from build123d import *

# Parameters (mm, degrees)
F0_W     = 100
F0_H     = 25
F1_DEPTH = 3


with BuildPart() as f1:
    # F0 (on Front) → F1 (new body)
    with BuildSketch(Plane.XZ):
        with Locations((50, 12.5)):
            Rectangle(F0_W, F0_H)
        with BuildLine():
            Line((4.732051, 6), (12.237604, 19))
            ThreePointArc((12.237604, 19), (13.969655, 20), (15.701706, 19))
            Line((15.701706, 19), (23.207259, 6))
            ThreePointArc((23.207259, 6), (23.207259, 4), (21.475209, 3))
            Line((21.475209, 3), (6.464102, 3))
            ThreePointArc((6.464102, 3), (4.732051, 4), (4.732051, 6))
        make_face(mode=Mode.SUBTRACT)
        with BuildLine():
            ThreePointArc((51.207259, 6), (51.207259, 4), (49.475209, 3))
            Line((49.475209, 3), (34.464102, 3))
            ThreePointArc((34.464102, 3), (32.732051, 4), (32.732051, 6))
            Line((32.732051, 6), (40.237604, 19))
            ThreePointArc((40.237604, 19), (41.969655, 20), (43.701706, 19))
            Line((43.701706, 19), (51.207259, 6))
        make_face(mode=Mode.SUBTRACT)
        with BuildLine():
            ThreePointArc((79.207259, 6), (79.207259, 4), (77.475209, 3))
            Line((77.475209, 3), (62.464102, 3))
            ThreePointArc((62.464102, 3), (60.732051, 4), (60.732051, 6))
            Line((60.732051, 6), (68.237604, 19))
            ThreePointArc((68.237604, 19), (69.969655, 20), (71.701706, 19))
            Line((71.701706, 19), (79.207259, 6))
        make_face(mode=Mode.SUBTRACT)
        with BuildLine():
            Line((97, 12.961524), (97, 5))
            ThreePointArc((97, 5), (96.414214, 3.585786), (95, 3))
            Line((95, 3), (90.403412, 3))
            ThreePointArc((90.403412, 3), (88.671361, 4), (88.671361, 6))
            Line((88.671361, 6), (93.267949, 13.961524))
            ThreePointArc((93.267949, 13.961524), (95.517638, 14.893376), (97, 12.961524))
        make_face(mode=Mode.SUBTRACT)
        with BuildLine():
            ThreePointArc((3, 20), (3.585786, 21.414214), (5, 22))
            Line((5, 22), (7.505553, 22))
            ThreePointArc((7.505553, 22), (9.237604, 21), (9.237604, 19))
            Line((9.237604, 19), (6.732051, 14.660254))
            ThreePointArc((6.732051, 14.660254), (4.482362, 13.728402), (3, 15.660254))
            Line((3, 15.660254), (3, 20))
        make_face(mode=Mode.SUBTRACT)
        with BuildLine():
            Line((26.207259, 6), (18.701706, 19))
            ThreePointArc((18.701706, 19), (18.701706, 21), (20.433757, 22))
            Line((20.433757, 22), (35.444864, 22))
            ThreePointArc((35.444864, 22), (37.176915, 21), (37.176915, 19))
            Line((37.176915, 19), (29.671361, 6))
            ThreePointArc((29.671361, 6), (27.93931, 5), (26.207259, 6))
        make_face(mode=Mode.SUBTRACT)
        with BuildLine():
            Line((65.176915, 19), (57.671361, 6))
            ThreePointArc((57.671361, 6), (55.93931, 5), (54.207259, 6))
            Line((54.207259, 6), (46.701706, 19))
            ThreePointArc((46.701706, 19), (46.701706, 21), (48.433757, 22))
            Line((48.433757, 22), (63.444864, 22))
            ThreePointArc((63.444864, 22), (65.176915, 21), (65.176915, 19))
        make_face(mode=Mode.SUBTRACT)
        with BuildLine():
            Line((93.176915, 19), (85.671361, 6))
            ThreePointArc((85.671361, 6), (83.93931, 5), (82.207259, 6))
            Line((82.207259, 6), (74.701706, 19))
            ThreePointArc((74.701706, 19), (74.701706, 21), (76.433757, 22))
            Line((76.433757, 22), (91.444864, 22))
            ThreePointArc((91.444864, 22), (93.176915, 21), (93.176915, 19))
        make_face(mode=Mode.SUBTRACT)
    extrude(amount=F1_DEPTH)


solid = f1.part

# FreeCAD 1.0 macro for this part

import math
import FreeCAD as App
import Part
import Sketcher
from FreeCAD import Vector
Q = App.Units.Quantity


def add_polygon(sketch, points):
    """Adds a closed chain of lines whose ends are joined by coincident constraints."""
    first, n = sketch.GeometryCount, len(points)
    for a, b in zip(points, points[1:] + points[:1]):
        sketch.addGeometry(Part.LineSegment(App.Vector(*a, 0), App.Vector(*b, 0)), False)
    for i in range(n):
        sketch.addConstraint(Sketcher.Constraint("Coincident", first + i, 2, first + (i + 1) % n, 1))

doc = App.newDocument("Part")
body = doc.addObject("PartDesign::Body", "Body")

sketch1 = doc.addObject("Sketcher::SketchObject", "Sketch")
body.addObject(sketch1)
sketch1.AttachmentSupport = (doc.XZ_Plane, [""])
sketch1.MapMode = "FlatFace"
add_polygon(sketch1, [(0, 25), (0, 0), (100, 0), (100, 25)])
sketch1.addGeometry(Part.ArcOfCircle(Part.Circle(Vector(6.5, 5, 0), Vector(0, 0, 1), 2), math.radians(150), math.radians(270)), False)
sketch1.addGeometry(Part.LineSegment(Vector(4.7, 6, 0), Vector(12.2, 19, 0)), False)
sketch1.addGeometry(Part.ArcOfCircle(Part.Circle(Vector(14, 18, 0), Vector(0, 0, 1), 2), math.radians(30), math.radians(150)), False)
sketch1.addGeometry(Part.LineSegment(Vector(15.7, 19, 0), Vector(23.2, 6, 0)), False)
sketch1.addGeometry(Part.ArcOfCircle(Part.Circle(Vector(21.5, 5, 0), Vector(0, 0, 1), 2), math.radians(-90), math.radians(30)), False)
sketch1.addGeometry(Part.LineSegment(Vector(21.5, 3, 0), Vector(6.5, 3, 0)), False)
sketch1.addGeometry(Part.LineSegment(Vector(43.7, 19, 0), Vector(51.2, 6, 0)), False)
sketch1.addGeometry(Part.ArcOfCircle(Part.Circle(Vector(49.5, 5, 0), Vector(0, 0, 1), 2), math.radians(-90), math.radians(30)), False)
sketch1.addGeometry(Part.LineSegment(Vector(49.5, 3, 0), Vector(34.5, 3, 0)), False)
sketch1.addGeometry(Part.ArcOfCircle(Part.Circle(Vector(34.5, 5, 0), Vector(0, 0, 1), 2), math.radians(150), math.radians(270)), False)
sketch1.addGeometry(Part.LineSegment(Vector(32.7, 6, 0), Vector(40.2, 19, 0)), False)
sketch1.addGeometry(Part.ArcOfCircle(Part.Circle(Vector(42, 18, 0), Vector(0, 0, 1), 2), math.radians(30), math.radians(150)), False)
sketch1.addGeometry(Part.LineSegment(Vector(71.7, 19, 0), Vector(79.2, 6, 0)), False)
sketch1.addGeometry(Part.ArcOfCircle(Part.Circle(Vector(77.5, 5, 0), Vector(0, 0, 1), 2), math.radians(-90), math.radians(30)), False)
sketch1.addGeometry(Part.LineSegment(Vector(77.5, 3, 0), Vector(62.5, 3, 0)), False)
sketch1.addGeometry(Part.ArcOfCircle(Part.Circle(Vector(62.5, 5, 0), Vector(0, 0, 1), 2), math.radians(150), math.radians(270)), False)
sketch1.addGeometry(Part.LineSegment(Vector(60.7, 6, 0), Vector(68.2, 19, 0)), False)
sketch1.addGeometry(Part.ArcOfCircle(Part.Circle(Vector(70, 18, 0), Vector(0, 0, 1), 2), math.radians(30), math.radians(150)), False)
sketch1.addGeometry(Part.ArcOfCircle(Part.Circle(Vector(95, 13, 0), Vector(0, 0, 1), 2), math.radians(0), math.radians(150)), False)
sketch1.addGeometry(Part.LineSegment(Vector(97, 13, 0), Vector(97, 5, 0)), False)
sketch1.addGeometry(Part.ArcOfCircle(Part.Circle(Vector(95, 5, 0), Vector(0, 0, 1), 2), math.radians(-90), math.radians(0)), False)
sketch1.addGeometry(Part.LineSegment(Vector(95, 3, 0), Vector(90.4, 3, 0)), False)
sketch1.addGeometry(Part.ArcOfCircle(Part.Circle(Vector(90.4, 5, 0), Vector(0, 0, 1), 2), math.radians(150), math.radians(270)), False)
sketch1.addGeometry(Part.LineSegment(Vector(88.7, 6, 0), Vector(93.3, 14, 0)), False)
sketch1.addGeometry(Part.ArcOfCircle(Part.Circle(Vector(27.9, 7, 0), Vector(0, 0, 1), 2), math.radians(-150), math.radians(-30)), False)
sketch1.addGeometry(Part.LineSegment(Vector(26.2, 6, 0), Vector(18.7, 19, 0)), False)
sketch1.addGeometry(Part.ArcOfCircle(Part.Circle(Vector(20.4, 20, 0), Vector(0, 0, 1), 2), math.radians(90), math.radians(210)), False)
sketch1.addGeometry(Part.LineSegment(Vector(20.4, 22, 0), Vector(35.4, 22, 0)), False)
sketch1.addGeometry(Part.ArcOfCircle(Part.Circle(Vector(35.4, 20, 0), Vector(0, 0, 1), 2), math.radians(-30), math.radians(90)), False)
sketch1.addGeometry(Part.LineSegment(Vector(37.2, 19, 0), Vector(29.7, 6, 0)), False)
sketch1.addGeometry(Part.LineSegment(Vector(3, 15.7, 0), Vector(3, 20, 0)), False)
sketch1.addGeometry(Part.ArcOfCircle(Part.Circle(Vector(5, 20, 0), Vector(0, 0, 1), 2), math.radians(90), math.radians(180)), False)
sketch1.addGeometry(Part.LineSegment(Vector(5, 22, 0), Vector(7.5, 22, 0)), False)
sketch1.addGeometry(Part.ArcOfCircle(Part.Circle(Vector(7.5, 20, 0), Vector(0, 0, 1), 2), math.radians(-30), math.radians(90)), False)
sketch1.addGeometry(Part.LineSegment(Vector(9.2, 19, 0), Vector(6.7, 14.7, 0)), False)
sketch1.addGeometry(Part.ArcOfCircle(Part.Circle(Vector(5, 15.7, 0), Vector(0, 0, 1), 2), math.radians(180), math.radians(330)), False)
sketch1.addGeometry(Part.ArcOfCircle(Part.Circle(Vector(63.4, 20, 0), Vector(0, 0, 1), 2), math.radians(-30), math.radians(90)), False)
sketch1.addGeometry(Part.LineSegment(Vector(65.2, 19, 0), Vector(57.7, 6, 0)), False)
sketch1.addGeometry(Part.ArcOfCircle(Part.Circle(Vector(55.9, 7, 0), Vector(0, 0, 1), 2), math.radians(-150), math.radians(-30)), False)
sketch1.addGeometry(Part.LineSegment(Vector(54.2, 6, 0), Vector(46.7, 19, 0)), False)
sketch1.addGeometry(Part.ArcOfCircle(Part.Circle(Vector(48.4, 20, 0), Vector(0, 0, 1), 2), math.radians(90), math.radians(210)), False)
sketch1.addGeometry(Part.LineSegment(Vector(48.4, 22, 0), Vector(63.4, 22, 0)), False)
sketch1.addGeometry(Part.ArcOfCircle(Part.Circle(Vector(91.4, 20, 0), Vector(0, 0, 1), 2), math.radians(-30), math.radians(90)), False)
sketch1.addGeometry(Part.LineSegment(Vector(93.2, 19, 0), Vector(85.7, 6, 0)), False)
sketch1.addGeometry(Part.ArcOfCircle(Part.Circle(Vector(83.9, 7, 0), Vector(0, 0, 1), 2), math.radians(-150), math.radians(-30)), False)
sketch1.addGeometry(Part.LineSegment(Vector(82.2, 6, 0), Vector(74.7, 19, 0)), False)
sketch1.addGeometry(Part.ArcOfCircle(Part.Circle(Vector(76.4, 20, 0), Vector(0, 0, 1), 2), math.radians(90), math.radians(210)), False)
sketch1.addGeometry(Part.LineSegment(Vector(76.4, 22, 0), Vector(91.4, 22, 0)), False)
sketch1.addConstraint([
    Sketcher.Constraint("Tangent", 4, 1, 5, 1),
    Sketcher.Constraint("Tangent", 5, 2, 6, 2),
    Sketcher.Constraint("Tangent", 6, 1, 7, 1),
    Sketcher.Constraint("Tangent", 7, 2, 8, 2),
    Sketcher.Constraint("Tangent", 8, 1, 9, 1),
    Sketcher.Constraint("Tangent", 9, 2, 4, 2),
    Sketcher.Constraint("Tangent", 10, 2, 11, 2),
    Sketcher.Constraint("Tangent", 11, 1, 12, 1),
    Sketcher.Constraint("Tangent", 12, 2, 13, 2),
    Sketcher.Constraint("Tangent", 13, 1, 14, 1),
    Sketcher.Constraint("Tangent", 14, 2, 15, 2),
    Sketcher.Constraint("Tangent", 15, 1, 10, 1),
    Sketcher.Constraint("Tangent", 16, 2, 17, 2),
    Sketcher.Constraint("Tangent", 17, 1, 18, 1),
    Sketcher.Constraint("Tangent", 18, 2, 19, 2),
    Sketcher.Constraint("Tangent", 19, 1, 20, 1),
    Sketcher.Constraint("Tangent", 20, 2, 21, 2),
    Sketcher.Constraint("Tangent", 21, 1, 16, 1),
    Sketcher.Constraint("Tangent", 22, 1, 23, 1),
    Sketcher.Constraint("Tangent", 23, 2, 24, 2),
    Sketcher.Constraint("Tangent", 24, 1, 25, 1),
    Sketcher.Constraint("Tangent", 25, 2, 26, 2),
    Sketcher.Constraint("Tangent", 26, 1, 27, 1),
    Sketcher.Constraint("Tangent", 27, 2, 22, 2),
    Sketcher.Constraint("Tangent", 28, 1, 29, 1),
    Sketcher.Constraint("Tangent", 29, 2, 30, 2),
    Sketcher.Constraint("Tangent", 30, 1, 31, 1),
    Sketcher.Constraint("Tangent", 31, 2, 32, 2),
    Sketcher.Constraint("Tangent", 32, 1, 33, 1),
    Sketcher.Constraint("Tangent", 33, 2, 28, 2),
    Sketcher.Constraint("Tangent", 34, 2, 35, 2),
    Sketcher.Constraint("Tangent", 35, 1, 36, 1),
    Sketcher.Constraint("Tangent", 36, 2, 37, 2),
    Sketcher.Constraint("Tangent", 37, 1, 38, 1),
    Sketcher.Constraint("Tangent", 38, 2, 39, 2),
    Sketcher.Constraint("Tangent", 39, 1, 34, 1),
    Sketcher.Constraint("Tangent", 40, 1, 41, 1),
    Sketcher.Constraint("Tangent", 41, 2, 42, 2),
    Sketcher.Constraint("Tangent", 42, 1, 43, 1),
    Sketcher.Constraint("Tangent", 43, 2, 44, 2),
    Sketcher.Constraint("Tangent", 44, 1, 45, 1),
    Sketcher.Constraint("Tangent", 45, 2, 40, 2),
    Sketcher.Constraint("Tangent", 46, 1, 47, 1),
    Sketcher.Constraint("Tangent", 47, 2, 48, 2),
    Sketcher.Constraint("Tangent", 48, 1, 49, 1),
    Sketcher.Constraint("Tangent", 49, 2, 50, 2),
    Sketcher.Constraint("Tangent", 50, 1, 51, 1),
    Sketcher.Constraint("Tangent", 51, 2, 46, 2),
    Sketcher.Constraint("Vertical", 0),
    Sketcher.Constraint("Horizontal", 1),
    Sketcher.Constraint("Vertical", 2),
    Sketcher.Constraint("Horizontal", 3),
    Sketcher.Constraint("Horizontal", 9),
    Sketcher.Constraint("Horizontal", 12),
    Sketcher.Constraint("Horizontal", 18),
    Sketcher.Constraint("Vertical", 23),
    Sketcher.Constraint("Horizontal", 25),
    Sketcher.Constraint("Horizontal", 31),
    Sketcher.Constraint("Vertical", 34),
    Sketcher.Constraint("Horizontal", 36),
    Sketcher.Constraint("Horizontal", 45),
    Sketcher.Constraint("Horizontal", 51),
    Sketcher.Constraint("Coincident", 0, 2, -1, 1),
    Sketcher.Constraint("Equal", 4, 6),
    Sketcher.Constraint("Equal", 6, 8),
    Sketcher.Constraint("Equal", 8, 11),
    Sketcher.Constraint("Equal", 11, 13),
    Sketcher.Constraint("Equal", 13, 15),
    Sketcher.Constraint("Equal", 15, 17),
    Sketcher.Constraint("Equal", 17, 19),
    Sketcher.Constraint("Equal", 19, 21),
    Sketcher.Constraint("Equal", 21, 22),
    Sketcher.Constraint("Equal", 22, 24),
    Sketcher.Constraint("Equal", 24, 26),
    Sketcher.Constraint("Equal", 26, 28),
    Sketcher.Constraint("Equal", 28, 30),
    Sketcher.Constraint("Equal", 30, 32),
    Sketcher.Constraint("Equal", 32, 35),
    Sketcher.Constraint("Equal", 35, 37),
    Sketcher.Constraint("Equal", 37, 39),
    Sketcher.Constraint("Equal", 39, 40),
    Sketcher.Constraint("Equal", 40, 42),
    Sketcher.Constraint("Equal", 42, 44),
    Sketcher.Constraint("Equal", 44, 46),
    Sketcher.Constraint("Equal", 46, 48),
    Sketcher.Constraint("Equal", 48, 50),
    Sketcher.Constraint("Parallel", 7, 10),
    Sketcher.Constraint("Parallel", 5, 14),
    Sketcher.Constraint("Parallel", 10, 16),
    Sketcher.Constraint("Parallel", 14, 20),
    Sketcher.Constraint("Parallel", 20, 27),
    Sketcher.Constraint("Parallel", 16, 29),
    Sketcher.Constraint("Parallel", 27, 33),
    Sketcher.Constraint("Parallel", 33, 38),
    Sketcher.Constraint("Parallel", 38, 41),
    Sketcher.Constraint("Parallel", 29, 43),
    Sketcher.Constraint("Parallel", 41, 47),
    Sketcher.Constraint("Parallel", 43, 49),
    Sketcher.Constraint("Horizontal", 8, 3, 11, 3),
    Sketcher.Constraint("Horizontal", 6, 3, 15, 3),
    Sketcher.Constraint("Horizontal", 13, 3, 17, 3),
    Sketcher.Constraint("Horizontal", 15, 3, 21, 3),
    Sketcher.Constraint("Horizontal", 19, 3, 24, 3),
    Sketcher.Constraint("Horizontal", 32, 3, 35, 3),
    Sketcher.Constraint("Horizontal", 37, 3, 40, 3),
    Sketcher.Constraint("Horizontal", 28, 3, 42, 3),
    Sketcher.Constraint("Horizontal", 44, 3, 46, 3),
    Sketcher.Constraint("Horizontal", 42, 3, 48, 3),
    Sketcher.Constraint("Horizontal", 5, 2, 6, 1),
    Sketcher.Constraint("Horizontal", 26, 1, 28, 1),
    Sketcher.Constraint("Horizontal", 21, 1, 29, 2),
    Sketcher.Constraint("Radius", 4, Q("2 mm")),
    Sketcher.Constraint("DistanceX", 1, 1, 1, 2, Q("100 mm")),
    Sketcher.Constraint("DistanceY", 0, 2, 0, 1, Q("25 mm")),
    Sketcher.Constraint("Angle", 5, Q("60.000002 deg")),
    Sketcher.Constraint("DistanceY", -1, 1, 4, 3, Q("5 mm")),
    Sketcher.Constraint("DistanceY", -1, 1, 6, 3, Q("18 mm")),
    Sketcher.Constraint("DistanceX", -1, 1, 22, 3, Q("95 mm")),
    Sketcher.Constraint("DistanceX", -1, 1, 35, 3, Q("4.999999 mm")),
    Sketcher.Constraint("DistanceX", -1, 1, 4, 3, Q("6.464102 mm")),
    Sketcher.Constraint("DistanceX", -1, 1, 13, 3, Q("34.464102 mm")),
    Sketcher.Constraint("DistanceX", -1, 1, 19, 3, Q("62.464102 mm")),
    Sketcher.Constraint("DistanceX", 25, 2, 25, 1, Q("4.596588 mm")),
    Sketcher.Constraint("DistanceX", 36, 1, 36, 2, Q("2.505553 mm")),
    Sketcher.Constraint("DistanceX", -1, 1, 28, 3, Q("27.93931 mm")),
    Sketcher.Constraint("DistanceX", -1, 1, 42, 3, Q("55.93931 mm")),
    Sketcher.Constraint("DistanceX", -1, 1, 48, 3, Q("83.93931 mm")),
])
pad1 = doc.addObject("PartDesign::Pad", "Pad")
body.addObject(pad1)
pad1.Profile = sketch1
pad1.Length = 3

doc.recompute()
